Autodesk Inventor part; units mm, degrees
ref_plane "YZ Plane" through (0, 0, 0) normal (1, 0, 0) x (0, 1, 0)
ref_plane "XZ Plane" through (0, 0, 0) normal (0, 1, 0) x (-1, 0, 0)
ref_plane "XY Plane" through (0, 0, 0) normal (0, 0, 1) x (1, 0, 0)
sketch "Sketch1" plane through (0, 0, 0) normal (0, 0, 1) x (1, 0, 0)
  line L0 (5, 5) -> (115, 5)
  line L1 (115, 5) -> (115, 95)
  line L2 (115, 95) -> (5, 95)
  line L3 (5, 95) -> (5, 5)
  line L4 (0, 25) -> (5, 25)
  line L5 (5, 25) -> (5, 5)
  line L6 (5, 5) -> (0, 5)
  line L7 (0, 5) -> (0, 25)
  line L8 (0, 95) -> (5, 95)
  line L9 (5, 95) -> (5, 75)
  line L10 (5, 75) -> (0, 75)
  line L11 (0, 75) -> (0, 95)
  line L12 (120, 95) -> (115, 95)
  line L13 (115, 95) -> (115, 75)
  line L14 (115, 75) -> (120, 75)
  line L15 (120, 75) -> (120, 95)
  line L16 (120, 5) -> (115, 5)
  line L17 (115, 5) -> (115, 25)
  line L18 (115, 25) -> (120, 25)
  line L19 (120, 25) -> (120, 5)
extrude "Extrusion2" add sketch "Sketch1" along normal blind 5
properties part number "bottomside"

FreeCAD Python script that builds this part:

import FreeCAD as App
import Part
import Sketcher
Q = App.Units.Quantity

doc = App.newDocument("Part")
body = doc.addObject("PartDesign::Body", "Body")

sketch1 = body.newObject("Sketcher::SketchObject", "Sketch")
sketch1.AttachmentSupport = (doc.getObject("XY_Plane"), [""])
sketch1.MapMode = "FlatFace"
sketch1.addGeometry([
    Part.LineSegment(App.Vector(5, 75, 0), App.Vector(5, 25, 0)),
    Part.LineSegment(App.Vector(5, 25, 0), App.Vector(0, 25, 0)),
    Part.LineSegment(App.Vector(0, 25, 0), App.Vector(0, 5, 0)),
    Part.LineSegment(App.Vector(0, 5, 0), App.Vector(120, 5, 0)),
    Part.LineSegment(App.Vector(120, 5, 0), App.Vector(120, 25, 0)),
    Part.LineSegment(App.Vector(120, 25, 0), App.Vector(115, 25, 0)),
    Part.LineSegment(App.Vector(115, 25, 0), App.Vector(115, 75, 0)),
    Part.LineSegment(App.Vector(115, 75, 0), App.Vector(120, 75, 0)),
    Part.LineSegment(App.Vector(120, 75, 0), App.Vector(120, 95, 0)),
    Part.LineSegment(App.Vector(120, 95, 0), App.Vector(0, 95, 0)),
    Part.LineSegment(App.Vector(0, 95, 0), App.Vector(0, 75, 0)),
    Part.LineSegment(App.Vector(0, 75, 0), App.Vector(5, 75, 0)),
], False)
sketch1.addConstraint([
    Sketcher.Constraint("Coincident", 0, 2, 1, 1),
    Sketcher.Constraint("Coincident", 1, 2, 2, 1),
    Sketcher.Constraint("Coincident", 2, 2, 3, 1),
    Sketcher.Constraint("Coincident", 3, 2, 4, 1),
    Sketcher.Constraint("Coincident", 4, 2, 5, 1),
    Sketcher.Constraint("Coincident", 5, 2, 6, 1),
    Sketcher.Constraint("Coincident", 6, 2, 7, 1),
    Sketcher.Constraint("Coincident", 7, 2, 8, 1),
    Sketcher.Constraint("Coincident", 8, 2, 9, 1),
    Sketcher.Constraint("Coincident", 9, 2, 10, 1),
    Sketcher.Constraint("Coincident", 10, 2, 11, 1),
    Sketcher.Constraint("Coincident", 11, 2, 0, 1),
    Sketcher.Constraint("Vertical", 0),
    Sketcher.Constraint("Horizontal", 1),
    Sketcher.Constraint("Vertical", 2),
    Sketcher.Constraint("Horizontal", 3),
    Sketcher.Constraint("Vertical", 4),
    Sketcher.Constraint("Horizontal", 5),
    Sketcher.Constraint("Vertical", 6),
    Sketcher.Constraint("Horizontal", 7),
    Sketcher.Constraint("Vertical", 8),
    Sketcher.Constraint("Horizontal", 9),
    Sketcher.Constraint("Vertical", 10),
    Sketcher.Constraint("Horizontal", 11),
    Sketcher.Constraint("PointOnObject", 1, 2, -2),
    Sketcher.Constraint("PointOnObject", 9, 2, -2),
    Sketcher.Constraint("Horizontal", 1, 2, 4, 2),
    Sketcher.Constraint("Horizontal", 7, 2, 10, 2),
    Sketcher.Constraint("Vertical", 4, 2, 7, 2),
    Sketcher.Constraint("Equal", 1, 5),
    Sketcher.Constraint("Equal", 4, 8),
    Sketcher.Constraint("DistanceX", 1, 2, 1, 1, Q("5 mm")),
    Sketcher.Constraint("DistanceX", 3, 1, 3, 2, Q("120 mm")),
    Sketcher.Constraint("DistanceY", 0, 2, 0, 1, Q("50 mm")),
    Sketcher.Constraint("DistanceY", 2, 2, 2, 1, Q("20 mm")),
    Sketcher.Constraint("DistanceY", -1, 1, 0, 2, Q("25 mm")),
])
pad1 = body.newObject("PartDesign::Pad", "Pad")
pad1.Profile = sketch1
pad1.Length = 5

doc.recompute()
